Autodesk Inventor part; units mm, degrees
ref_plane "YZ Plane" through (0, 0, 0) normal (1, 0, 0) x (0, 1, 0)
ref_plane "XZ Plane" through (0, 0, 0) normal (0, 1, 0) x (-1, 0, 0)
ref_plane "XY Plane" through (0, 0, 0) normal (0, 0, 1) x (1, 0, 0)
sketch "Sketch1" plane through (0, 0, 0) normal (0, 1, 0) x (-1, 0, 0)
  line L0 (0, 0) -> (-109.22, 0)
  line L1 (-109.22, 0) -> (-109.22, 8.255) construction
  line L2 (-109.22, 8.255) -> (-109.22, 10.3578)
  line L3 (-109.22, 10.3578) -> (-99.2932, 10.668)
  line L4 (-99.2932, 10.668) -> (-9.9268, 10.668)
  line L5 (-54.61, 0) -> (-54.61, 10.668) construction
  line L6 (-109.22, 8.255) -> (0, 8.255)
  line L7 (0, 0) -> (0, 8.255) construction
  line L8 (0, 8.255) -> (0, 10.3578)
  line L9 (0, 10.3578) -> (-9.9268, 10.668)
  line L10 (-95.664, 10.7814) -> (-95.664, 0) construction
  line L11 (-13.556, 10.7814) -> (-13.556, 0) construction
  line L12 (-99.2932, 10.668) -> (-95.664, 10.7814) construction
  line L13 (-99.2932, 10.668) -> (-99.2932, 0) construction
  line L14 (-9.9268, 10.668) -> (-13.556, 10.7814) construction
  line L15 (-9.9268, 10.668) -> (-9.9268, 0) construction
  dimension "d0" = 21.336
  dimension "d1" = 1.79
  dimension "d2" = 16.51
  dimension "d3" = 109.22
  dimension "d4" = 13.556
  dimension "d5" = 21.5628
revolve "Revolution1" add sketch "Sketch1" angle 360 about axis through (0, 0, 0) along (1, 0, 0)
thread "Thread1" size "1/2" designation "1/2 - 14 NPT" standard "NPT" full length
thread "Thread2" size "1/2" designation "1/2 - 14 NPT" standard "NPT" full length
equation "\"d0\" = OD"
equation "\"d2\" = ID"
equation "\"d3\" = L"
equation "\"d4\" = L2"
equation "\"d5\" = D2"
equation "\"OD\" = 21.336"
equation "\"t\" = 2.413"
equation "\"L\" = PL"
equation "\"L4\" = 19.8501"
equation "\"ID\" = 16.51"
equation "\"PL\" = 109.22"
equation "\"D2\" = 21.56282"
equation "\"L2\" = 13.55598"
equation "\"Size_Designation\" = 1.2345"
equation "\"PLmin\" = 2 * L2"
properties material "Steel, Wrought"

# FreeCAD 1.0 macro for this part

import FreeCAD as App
import Part
import Sketcher
Q = App.Units.Quantity


def add_polygon(sketch, points):
    """Adds a closed chain of lines whose ends are joined by coincident constraints."""
    first, n = sketch.GeometryCount, len(points)
    for a, b in zip(points, points[1:] + points[:1]):
        sketch.addGeometry(Part.LineSegment(App.Vector(*a, 0), App.Vector(*b, 0)), False)
    for i in range(n):
        sketch.addConstraint(Sketcher.Constraint("Coincident", first + i, 2, first + (i + 1) % n, 1))

doc = App.newDocument("Part")
params = doc.addObject("Spreadsheet::Sheet", "Params")
for row, (alias, value) in enumerate([
    ("sketch1_width", "4.3 in"),
    ("sketch1_length", "0.391 in"),
    ("revolution_angle", "360 deg"),
], start=1):
    params.set(f"A{row}", alias)
    params.set(f"B{row}", "=" + value)
    params.setAlias(f"B{row}", alias)

body = doc.addObject("PartDesign::Body", "Body")

sketch1 = doc.addObject("Sketcher::SketchObject", "Sketch")
body.addObject(sketch1)
sketch1.AttachmentSupport = (doc.XZ_Plane, [""])
sketch1.MapMode = "FlatFace"
add_polygon(sketch1, [(109.2, 10.4), (109.2, 8.3), (0, 8.3), (0, 10.4), (9.9, 10.7), (99.3, 10.7)])
sketch1.addConstraint([
    Sketcher.Constraint("Vertical", 0),
    Sketcher.Constraint("Horizontal", 1),
    Sketcher.Constraint("Vertical", 2),
    Sketcher.Constraint("Horizontal", 4),
    Sketcher.Constraint("PointOnObject", 1, 2, -2),
    Sketcher.Constraint("Horizontal", 2, 2, 5, 2),
    Sketcher.Constraint("Equal", 3, 5),
    Sketcher.Constraint("DistanceX", 1, 2, 1, 1, Q("4.3 in")),
    Sketcher.Constraint("Angle", 3, Q("1.7898 deg")),
    Sketcher.Constraint("DistanceY", -1, 1, 3, 2, Q("0.42 in")),
    Sketcher.Constraint("Distance", 3, Q("0.391 in")),
    Sketcher.Constraint("DistanceY", -1, 1, 0, 2, Q("0.325 in")),
])
sketch1.setExpression("Constraints[13]", "Params.sketch1_width")
sketch1.setExpression("Constraints[16]", "Params.sketch1_length")
revolution = doc.addObject("PartDesign::Revolution", "Revolution")
body.addObject(revolution)
revolution.Profile = sketch1
revolution.ReferenceAxis = (sketch1, ["H_Axis"])
revolution.setExpression("Angle", "Params.revolution_angle")

doc.recompute()
